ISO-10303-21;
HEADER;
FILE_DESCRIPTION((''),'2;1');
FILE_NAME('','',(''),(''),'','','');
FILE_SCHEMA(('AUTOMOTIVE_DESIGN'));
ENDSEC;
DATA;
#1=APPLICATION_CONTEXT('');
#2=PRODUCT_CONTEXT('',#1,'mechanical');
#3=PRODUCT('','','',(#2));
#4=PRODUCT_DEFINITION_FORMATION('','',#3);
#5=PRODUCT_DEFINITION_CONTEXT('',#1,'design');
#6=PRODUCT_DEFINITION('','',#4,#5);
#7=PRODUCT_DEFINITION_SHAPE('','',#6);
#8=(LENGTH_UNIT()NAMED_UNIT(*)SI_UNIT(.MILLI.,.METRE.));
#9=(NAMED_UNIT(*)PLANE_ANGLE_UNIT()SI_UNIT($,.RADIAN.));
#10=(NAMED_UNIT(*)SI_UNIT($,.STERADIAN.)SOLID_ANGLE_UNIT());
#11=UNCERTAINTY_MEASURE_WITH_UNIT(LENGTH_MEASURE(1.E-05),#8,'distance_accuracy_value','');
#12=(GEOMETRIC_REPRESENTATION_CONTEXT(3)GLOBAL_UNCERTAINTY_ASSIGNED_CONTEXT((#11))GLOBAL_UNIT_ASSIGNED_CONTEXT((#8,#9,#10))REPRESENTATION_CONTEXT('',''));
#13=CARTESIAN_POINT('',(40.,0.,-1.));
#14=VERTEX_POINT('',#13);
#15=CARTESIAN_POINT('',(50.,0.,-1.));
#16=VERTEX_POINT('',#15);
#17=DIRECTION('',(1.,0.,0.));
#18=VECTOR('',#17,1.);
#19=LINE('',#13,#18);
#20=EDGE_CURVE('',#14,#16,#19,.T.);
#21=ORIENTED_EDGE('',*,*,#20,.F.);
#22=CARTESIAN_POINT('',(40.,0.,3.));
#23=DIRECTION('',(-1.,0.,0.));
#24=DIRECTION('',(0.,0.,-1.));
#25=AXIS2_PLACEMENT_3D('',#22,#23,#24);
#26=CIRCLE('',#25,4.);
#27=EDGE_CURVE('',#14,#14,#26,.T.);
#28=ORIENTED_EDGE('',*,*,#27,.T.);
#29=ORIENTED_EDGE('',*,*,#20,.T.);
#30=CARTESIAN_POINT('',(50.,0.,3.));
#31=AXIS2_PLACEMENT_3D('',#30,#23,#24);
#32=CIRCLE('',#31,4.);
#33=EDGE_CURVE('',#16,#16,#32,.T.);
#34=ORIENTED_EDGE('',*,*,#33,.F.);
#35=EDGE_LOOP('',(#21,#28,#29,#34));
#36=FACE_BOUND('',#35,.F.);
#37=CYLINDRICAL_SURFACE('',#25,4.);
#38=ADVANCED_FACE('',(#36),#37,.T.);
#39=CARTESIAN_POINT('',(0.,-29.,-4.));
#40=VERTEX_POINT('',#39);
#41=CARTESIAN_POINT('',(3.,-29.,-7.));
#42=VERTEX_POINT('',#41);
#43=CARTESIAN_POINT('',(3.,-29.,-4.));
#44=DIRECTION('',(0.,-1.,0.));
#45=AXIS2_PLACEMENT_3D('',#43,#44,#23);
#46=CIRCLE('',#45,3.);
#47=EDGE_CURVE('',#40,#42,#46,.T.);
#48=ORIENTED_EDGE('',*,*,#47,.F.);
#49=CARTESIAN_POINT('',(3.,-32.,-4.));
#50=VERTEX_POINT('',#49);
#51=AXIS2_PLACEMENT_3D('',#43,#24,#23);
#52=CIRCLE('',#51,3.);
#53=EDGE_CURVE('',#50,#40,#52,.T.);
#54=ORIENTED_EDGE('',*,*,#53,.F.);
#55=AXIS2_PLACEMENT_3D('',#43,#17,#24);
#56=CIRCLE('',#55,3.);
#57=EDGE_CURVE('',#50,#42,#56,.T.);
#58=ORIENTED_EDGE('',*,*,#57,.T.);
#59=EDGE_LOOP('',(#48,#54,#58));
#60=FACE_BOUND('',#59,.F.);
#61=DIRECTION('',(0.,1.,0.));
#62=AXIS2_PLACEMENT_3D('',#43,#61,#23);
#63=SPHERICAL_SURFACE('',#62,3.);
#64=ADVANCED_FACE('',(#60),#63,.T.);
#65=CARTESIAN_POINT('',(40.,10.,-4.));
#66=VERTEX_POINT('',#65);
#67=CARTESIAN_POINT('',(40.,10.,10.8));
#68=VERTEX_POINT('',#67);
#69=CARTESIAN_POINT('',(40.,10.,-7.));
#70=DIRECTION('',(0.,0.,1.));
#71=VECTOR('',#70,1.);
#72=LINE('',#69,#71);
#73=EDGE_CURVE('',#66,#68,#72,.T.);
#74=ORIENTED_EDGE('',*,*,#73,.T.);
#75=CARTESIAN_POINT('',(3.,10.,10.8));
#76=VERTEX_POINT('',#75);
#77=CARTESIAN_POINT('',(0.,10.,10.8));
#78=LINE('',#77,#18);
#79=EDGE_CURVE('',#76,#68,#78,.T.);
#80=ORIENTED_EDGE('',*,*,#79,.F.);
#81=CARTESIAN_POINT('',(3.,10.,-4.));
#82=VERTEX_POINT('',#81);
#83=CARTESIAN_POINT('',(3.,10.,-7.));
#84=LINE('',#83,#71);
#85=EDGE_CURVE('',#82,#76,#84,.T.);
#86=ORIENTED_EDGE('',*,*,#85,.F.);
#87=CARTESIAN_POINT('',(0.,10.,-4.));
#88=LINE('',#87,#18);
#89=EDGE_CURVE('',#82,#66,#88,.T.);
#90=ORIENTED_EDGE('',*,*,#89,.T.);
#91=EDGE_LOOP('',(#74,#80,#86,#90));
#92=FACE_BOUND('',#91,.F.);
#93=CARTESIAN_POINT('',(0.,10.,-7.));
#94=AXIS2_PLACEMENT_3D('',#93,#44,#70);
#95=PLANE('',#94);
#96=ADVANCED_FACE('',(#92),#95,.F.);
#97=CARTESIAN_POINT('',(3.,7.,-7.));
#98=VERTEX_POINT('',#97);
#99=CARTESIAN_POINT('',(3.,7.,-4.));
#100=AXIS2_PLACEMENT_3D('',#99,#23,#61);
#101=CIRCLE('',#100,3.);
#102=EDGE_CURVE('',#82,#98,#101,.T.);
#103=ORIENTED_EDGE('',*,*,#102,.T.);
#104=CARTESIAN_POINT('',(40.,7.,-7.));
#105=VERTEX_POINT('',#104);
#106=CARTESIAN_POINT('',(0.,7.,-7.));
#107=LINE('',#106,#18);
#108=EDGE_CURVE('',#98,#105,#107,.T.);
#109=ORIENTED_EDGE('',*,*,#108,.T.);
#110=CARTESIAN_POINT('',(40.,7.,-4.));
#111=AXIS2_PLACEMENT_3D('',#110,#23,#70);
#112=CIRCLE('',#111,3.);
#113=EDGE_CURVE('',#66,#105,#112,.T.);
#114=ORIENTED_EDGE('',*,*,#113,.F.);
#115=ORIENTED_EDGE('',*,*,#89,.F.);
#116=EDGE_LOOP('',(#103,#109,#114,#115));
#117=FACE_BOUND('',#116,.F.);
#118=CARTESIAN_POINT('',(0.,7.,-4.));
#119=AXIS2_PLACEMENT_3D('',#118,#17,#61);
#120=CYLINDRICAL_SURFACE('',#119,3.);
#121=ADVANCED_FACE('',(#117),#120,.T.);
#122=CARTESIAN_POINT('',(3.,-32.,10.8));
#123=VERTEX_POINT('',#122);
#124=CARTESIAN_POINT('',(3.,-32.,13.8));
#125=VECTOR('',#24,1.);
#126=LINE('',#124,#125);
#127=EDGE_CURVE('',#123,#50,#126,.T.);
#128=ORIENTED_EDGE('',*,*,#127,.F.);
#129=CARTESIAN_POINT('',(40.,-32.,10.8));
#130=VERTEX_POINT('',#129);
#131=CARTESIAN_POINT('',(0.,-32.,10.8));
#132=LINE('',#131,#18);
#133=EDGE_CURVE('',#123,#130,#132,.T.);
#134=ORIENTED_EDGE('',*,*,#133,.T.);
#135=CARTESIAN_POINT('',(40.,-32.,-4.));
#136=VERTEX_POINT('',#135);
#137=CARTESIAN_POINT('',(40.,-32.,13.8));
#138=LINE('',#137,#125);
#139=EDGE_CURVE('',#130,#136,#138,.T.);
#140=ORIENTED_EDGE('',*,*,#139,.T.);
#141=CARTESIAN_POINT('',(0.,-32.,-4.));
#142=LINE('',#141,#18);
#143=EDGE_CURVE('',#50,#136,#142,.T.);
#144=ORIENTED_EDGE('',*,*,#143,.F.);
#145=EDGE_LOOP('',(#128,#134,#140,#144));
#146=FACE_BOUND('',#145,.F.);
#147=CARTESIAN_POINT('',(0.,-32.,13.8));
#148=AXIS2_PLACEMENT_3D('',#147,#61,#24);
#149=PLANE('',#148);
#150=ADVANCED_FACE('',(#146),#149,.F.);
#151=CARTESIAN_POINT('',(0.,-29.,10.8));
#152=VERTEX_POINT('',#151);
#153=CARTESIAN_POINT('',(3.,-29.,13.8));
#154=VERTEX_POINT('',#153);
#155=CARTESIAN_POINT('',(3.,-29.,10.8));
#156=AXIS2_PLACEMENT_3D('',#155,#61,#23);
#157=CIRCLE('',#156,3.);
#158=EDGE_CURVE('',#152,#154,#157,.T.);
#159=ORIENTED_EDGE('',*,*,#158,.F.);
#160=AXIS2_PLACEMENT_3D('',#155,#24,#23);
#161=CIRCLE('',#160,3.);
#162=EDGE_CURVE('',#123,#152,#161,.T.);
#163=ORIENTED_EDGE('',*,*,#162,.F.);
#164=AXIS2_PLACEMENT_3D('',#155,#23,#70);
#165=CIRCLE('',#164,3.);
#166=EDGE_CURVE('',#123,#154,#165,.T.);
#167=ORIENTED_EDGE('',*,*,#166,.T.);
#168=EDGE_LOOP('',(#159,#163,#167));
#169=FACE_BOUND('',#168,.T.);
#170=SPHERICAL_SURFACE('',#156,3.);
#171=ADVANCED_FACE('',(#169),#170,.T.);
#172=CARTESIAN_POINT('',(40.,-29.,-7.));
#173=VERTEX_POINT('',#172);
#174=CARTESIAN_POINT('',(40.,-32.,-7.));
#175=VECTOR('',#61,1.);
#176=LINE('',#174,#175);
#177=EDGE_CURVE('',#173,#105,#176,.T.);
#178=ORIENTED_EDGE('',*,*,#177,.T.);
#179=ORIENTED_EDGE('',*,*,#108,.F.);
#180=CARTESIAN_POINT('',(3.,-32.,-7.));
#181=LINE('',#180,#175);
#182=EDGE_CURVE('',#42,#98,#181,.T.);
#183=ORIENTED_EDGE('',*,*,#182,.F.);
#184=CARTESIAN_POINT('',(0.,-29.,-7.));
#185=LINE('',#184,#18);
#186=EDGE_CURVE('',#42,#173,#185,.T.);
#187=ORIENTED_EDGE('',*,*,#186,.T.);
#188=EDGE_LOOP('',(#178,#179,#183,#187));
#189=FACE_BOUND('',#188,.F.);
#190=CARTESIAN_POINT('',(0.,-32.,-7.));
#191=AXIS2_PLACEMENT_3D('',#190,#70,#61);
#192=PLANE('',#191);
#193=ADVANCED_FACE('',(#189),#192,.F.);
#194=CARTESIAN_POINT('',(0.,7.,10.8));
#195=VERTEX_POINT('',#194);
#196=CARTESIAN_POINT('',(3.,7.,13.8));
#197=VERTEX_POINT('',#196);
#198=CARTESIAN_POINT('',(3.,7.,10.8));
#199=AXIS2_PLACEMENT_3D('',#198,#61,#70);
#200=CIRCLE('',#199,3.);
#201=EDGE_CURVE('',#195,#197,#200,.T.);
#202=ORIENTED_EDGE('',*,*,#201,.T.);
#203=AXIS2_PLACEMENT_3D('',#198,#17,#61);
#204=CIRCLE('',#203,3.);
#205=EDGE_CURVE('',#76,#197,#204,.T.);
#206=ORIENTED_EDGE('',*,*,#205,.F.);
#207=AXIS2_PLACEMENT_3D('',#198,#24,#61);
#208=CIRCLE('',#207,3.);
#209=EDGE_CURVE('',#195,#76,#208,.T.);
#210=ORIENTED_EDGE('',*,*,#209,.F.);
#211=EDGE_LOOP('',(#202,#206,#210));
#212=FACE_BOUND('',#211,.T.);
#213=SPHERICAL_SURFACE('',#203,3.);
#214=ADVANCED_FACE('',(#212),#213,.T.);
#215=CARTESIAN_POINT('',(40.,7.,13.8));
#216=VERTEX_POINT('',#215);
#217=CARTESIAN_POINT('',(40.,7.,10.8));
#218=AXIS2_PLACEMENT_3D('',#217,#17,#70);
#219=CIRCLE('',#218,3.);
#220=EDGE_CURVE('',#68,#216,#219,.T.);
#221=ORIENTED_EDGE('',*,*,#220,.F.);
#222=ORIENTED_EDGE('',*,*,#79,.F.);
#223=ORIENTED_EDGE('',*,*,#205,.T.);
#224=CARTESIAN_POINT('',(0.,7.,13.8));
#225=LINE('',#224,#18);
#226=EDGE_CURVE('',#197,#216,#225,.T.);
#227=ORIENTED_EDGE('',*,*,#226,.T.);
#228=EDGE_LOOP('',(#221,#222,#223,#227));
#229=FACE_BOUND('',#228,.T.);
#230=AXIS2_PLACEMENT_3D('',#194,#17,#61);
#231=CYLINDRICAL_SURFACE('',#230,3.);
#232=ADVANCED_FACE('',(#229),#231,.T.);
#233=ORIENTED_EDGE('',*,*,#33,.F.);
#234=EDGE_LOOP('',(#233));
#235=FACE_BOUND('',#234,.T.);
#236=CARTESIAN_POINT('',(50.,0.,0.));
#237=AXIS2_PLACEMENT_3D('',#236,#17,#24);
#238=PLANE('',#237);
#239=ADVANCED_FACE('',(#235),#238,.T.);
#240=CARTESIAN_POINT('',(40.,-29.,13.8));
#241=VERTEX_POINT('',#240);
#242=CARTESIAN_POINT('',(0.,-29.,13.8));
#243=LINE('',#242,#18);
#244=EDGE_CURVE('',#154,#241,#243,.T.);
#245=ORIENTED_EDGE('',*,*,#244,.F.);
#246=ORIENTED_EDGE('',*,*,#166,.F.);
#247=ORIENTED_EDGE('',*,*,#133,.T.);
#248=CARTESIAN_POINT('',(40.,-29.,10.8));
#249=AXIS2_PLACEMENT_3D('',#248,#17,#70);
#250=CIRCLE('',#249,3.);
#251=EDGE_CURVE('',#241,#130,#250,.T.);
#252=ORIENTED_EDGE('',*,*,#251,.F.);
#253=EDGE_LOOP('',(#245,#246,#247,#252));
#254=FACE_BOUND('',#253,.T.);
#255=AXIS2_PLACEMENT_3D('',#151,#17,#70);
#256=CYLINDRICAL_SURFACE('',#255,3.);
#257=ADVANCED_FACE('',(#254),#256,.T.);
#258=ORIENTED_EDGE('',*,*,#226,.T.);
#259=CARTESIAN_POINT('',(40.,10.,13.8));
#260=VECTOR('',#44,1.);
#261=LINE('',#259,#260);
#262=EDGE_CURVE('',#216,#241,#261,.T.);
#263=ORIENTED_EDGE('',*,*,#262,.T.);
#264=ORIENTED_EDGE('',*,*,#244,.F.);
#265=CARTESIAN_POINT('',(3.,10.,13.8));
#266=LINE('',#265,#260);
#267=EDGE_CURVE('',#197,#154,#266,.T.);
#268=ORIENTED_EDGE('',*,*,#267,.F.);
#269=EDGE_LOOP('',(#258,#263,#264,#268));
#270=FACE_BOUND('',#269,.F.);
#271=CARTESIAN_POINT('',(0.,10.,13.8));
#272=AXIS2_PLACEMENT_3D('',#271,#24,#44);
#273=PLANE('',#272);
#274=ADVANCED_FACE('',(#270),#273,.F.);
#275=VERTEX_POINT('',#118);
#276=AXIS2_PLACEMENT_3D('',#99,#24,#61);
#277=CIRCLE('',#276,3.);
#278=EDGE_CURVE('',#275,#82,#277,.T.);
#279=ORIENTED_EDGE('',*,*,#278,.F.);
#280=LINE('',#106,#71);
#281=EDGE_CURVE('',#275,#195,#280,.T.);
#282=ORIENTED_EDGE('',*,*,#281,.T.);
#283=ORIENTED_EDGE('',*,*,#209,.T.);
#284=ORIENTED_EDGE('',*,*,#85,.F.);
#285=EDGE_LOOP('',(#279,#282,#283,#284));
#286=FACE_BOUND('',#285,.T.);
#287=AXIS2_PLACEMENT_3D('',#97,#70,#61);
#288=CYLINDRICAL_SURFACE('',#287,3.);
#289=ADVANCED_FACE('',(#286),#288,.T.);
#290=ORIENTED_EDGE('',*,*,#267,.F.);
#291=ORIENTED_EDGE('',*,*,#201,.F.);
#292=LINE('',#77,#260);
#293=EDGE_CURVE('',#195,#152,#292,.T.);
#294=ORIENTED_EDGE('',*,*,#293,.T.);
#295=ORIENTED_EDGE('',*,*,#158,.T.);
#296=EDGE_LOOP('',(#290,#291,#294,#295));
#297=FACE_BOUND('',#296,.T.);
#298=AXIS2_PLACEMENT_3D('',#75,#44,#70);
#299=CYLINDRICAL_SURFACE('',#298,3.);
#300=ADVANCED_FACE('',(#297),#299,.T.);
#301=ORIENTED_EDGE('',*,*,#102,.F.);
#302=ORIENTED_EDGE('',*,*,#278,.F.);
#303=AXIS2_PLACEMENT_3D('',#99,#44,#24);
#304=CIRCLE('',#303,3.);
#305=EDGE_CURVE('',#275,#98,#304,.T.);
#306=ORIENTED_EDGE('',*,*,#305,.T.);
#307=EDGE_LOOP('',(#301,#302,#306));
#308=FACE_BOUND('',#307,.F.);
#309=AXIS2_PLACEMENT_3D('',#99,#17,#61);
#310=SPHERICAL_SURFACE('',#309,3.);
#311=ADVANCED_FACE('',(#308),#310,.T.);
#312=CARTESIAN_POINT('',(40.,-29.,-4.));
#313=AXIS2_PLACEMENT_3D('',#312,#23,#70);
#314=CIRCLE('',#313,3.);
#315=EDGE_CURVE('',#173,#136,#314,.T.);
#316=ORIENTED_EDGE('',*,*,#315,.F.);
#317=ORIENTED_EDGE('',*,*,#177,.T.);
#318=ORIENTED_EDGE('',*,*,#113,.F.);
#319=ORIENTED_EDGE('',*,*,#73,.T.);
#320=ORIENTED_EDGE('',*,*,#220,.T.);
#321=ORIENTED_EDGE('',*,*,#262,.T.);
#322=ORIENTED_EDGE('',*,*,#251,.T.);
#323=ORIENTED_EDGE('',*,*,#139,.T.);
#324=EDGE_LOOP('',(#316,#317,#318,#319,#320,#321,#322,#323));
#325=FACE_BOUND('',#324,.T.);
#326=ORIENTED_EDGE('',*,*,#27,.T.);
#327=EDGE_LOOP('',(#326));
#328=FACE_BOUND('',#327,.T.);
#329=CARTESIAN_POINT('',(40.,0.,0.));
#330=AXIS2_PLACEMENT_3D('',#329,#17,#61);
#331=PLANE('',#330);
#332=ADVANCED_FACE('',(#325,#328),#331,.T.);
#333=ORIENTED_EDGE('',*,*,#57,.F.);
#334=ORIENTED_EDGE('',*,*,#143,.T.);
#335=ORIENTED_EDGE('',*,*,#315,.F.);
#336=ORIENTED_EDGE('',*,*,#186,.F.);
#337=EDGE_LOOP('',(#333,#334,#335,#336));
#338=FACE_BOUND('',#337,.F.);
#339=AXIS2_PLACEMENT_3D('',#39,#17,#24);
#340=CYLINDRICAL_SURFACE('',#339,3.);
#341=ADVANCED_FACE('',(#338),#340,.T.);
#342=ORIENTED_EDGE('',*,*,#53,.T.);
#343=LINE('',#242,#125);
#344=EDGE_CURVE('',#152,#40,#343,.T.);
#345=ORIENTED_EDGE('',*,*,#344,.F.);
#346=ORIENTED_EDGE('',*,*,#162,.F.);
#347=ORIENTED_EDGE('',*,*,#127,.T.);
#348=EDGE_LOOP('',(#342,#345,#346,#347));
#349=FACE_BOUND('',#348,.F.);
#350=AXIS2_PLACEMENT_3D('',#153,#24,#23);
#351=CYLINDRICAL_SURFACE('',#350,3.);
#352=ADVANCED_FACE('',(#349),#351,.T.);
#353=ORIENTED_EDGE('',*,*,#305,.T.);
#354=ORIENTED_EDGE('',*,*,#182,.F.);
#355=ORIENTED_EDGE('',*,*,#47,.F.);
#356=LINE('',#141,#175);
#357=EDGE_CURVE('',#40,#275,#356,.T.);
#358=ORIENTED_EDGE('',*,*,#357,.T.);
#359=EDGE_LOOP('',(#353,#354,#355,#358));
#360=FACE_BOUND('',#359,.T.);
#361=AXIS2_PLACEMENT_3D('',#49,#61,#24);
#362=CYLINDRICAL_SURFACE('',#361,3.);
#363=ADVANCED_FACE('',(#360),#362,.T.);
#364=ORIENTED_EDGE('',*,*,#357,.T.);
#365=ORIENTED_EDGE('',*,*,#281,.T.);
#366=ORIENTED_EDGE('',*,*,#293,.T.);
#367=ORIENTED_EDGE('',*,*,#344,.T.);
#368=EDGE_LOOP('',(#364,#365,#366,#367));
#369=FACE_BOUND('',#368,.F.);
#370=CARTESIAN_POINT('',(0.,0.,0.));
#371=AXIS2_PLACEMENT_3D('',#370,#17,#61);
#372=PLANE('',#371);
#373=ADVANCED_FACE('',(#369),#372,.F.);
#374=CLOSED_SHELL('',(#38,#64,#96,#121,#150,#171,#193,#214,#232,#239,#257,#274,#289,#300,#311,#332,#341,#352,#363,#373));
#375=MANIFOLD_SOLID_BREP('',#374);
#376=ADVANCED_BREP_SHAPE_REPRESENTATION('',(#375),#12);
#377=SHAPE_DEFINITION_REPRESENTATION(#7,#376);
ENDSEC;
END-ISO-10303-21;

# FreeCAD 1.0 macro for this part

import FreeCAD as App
import Part
import Sketcher


def edges_at(feature, points):
    """Names of the edges that pass closest to the given points."""
    edges = feature.Shape.Edges
    near = lambda p: min(range(len(edges)), key=lambda i: edges[i].distToShape(Part.Vertex(*p))[0])
    return sorted({f"Edge{near(p) + 1}" for p in points})

doc = App.newDocument("Part")
body = doc.addObject("PartDesign::Body", "Body")

# Sketch on YZ plane
sketch1 = doc.addObject("Sketcher::SketchObject", "Sketch")
body.addObject(sketch1)
sketch1.AttachmentSupport = (doc.YZ_Plane, [""])
sketch1.MapMode = "FlatFace"
sketch1.addGeometry([
    Part.LineSegment(App.Vector(10, -7, 0), App.Vector(10, 14, 0)),
    Part.LineSegment(App.Vector(10, 14, 0), App.Vector(-32, 14, 0)),
    Part.LineSegment(App.Vector(-32, 14, 0), App.Vector(-32, -7, 0)),
    Part.LineSegment(App.Vector(-32, -7, 0), App.Vector(10, -7, 0)),
], False)
sketch1.addConstraint([
    Sketcher.Constraint("Coincident", 0, 2, 1, 1),
    Sketcher.Constraint("Coincident", 1, 2, 2, 1),
    Sketcher.Constraint("Coincident", 2, 2, 3, 1),
    Sketcher.Constraint("Coincident", 3, 2, 0, 1),
    Sketcher.Constraint("Vertical", 0),
    Sketcher.Constraint("Horizontal", 1),
    Sketcher.Constraint("Vertical", 2),
    Sketcher.Constraint("Horizontal", 3),
    Sketcher.Constraint("DistanceX", 1, 2, 1, 1, 42.0),
    Sketcher.Constraint("DistanceY", 0, 1, 0, 2, 20.8),
    Sketcher.Constraint("DistanceX", -1, 1, 0, 2, 10.0),
    Sketcher.Constraint("DistanceY", 2, 2, -1, 1, 7.0),
])
pad1 = doc.addObject("PartDesign::Pad", "Pad")
body.addObject(pad1)
pad1.Profile = sketch1
pad1.Length = 40

# Sketch on YZ plane
sketch2 = doc.addObject("Sketcher::SketchObject", "Sketch001")
body.addObject(sketch2)
sketch2.AttachmentSupport = (doc.YZ_Plane, [""])
sketch2.MapMode = "FlatFace"
sketch2.AttachmentOffset = App.Placement(App.Vector(0, 0, 40), App.Rotation())
sketch2.addGeometry(Part.Circle(App.Vector(0, 3, 0), App.Vector(0, 0, 1), 4), False)
sketch2.addConstraint([
    Sketcher.Constraint("PointOnObject", 0, 3, -2),
    Sketcher.Constraint("Diameter", 0, 8.0),
    Sketcher.Constraint("DistanceY", -1, 1, 0, 3, 3.0),
])
pad2 = doc.addObject("PartDesign::Pad", "Pad001")
body.addObject(pad2)
pad2.Profile = sketch2
pad2.Length = 10
doc.recompute()

fillet = doc.addObject("PartDesign::Fillet", "Fillet")
body.addObject(fillet)
fillet.Base = (pad2, edges_at(pad2, [
    (20, 10, 13.8),
    (20, 10, -7),
    (0, 10, 3.4),
    (0, -11, 13.8),
    (0, -11, -7),
    (0, -32, 3.4),
    (20, -32, 13.8),
    (20, -32, -7),
]))
fillet.Radius = 3

doc.recompute()
